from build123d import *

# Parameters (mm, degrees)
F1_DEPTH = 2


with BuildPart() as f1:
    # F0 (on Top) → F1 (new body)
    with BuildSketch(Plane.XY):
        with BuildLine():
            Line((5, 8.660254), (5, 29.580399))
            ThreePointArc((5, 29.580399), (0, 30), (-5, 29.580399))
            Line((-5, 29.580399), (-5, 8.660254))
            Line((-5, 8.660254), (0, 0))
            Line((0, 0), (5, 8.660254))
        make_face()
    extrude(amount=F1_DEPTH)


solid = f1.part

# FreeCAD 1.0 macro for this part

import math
import FreeCAD as App
import Part
import Sketcher

V = App.Vector
Q = App.Units.Quantity

doc = App.newDocument("Part")
body = doc.addObject("PartDesign::Body", "Body")

# Sketch on XY plane
sketch1 = body.newObject("Sketcher::SketchObject", "Sketch")
sketch1.AttachmentSupport = (doc.getObject("XY_Plane"), [""])
sketch1.MapMode = "FlatFace"
sketch1.addGeometry([
    Part.LineSegment(V(5, 8.660254, 0), V(5, 29.580399, 0)),  # 0
    Part.ArcOfCircle(Part.Circle(V(0, -0.000006, 0), V(0, 0, 1), 30.000006), math.radians(80.405934), math.radians(99.594066)),  # 1
    Part.LineSegment(V(-5, 29.580399, 0), V(-5, 8.660254, 0)),  # 2
    Part.LineSegment(V(-5, 8.660254, 0), V(0, 0, 0)),  # 3
    Part.LineSegment(V(0, 0, 0), V(5, 8.660254, 0)),  # 4
], False)
sketch1.addConstraint([
    Sketcher.Constraint("Coincident", 0, 2, 1, 1),
    Sketcher.Constraint("Coincident", 1, 2, 2, 1),
    Sketcher.Constraint("Coincident", 2, 2, 3, 1),
    Sketcher.Constraint("Coincident", 3, 2, 4, 1),
    Sketcher.Constraint("Coincident", 4, 2, 0, 1),
    Sketcher.Constraint("Vertical", 0),
    Sketcher.Constraint("Vertical", 2),
    Sketcher.Constraint("Coincident", 1, 3, -1, 1),
    Sketcher.Constraint("Coincident", 3, 2, -1, 1),
    Sketcher.Constraint("Symmetric", 2, 2, 4, 2, -2),
    Sketcher.Constraint("Angle", 3, Q("-60 deg")),
    Sketcher.Constraint("Distance", 3, 10.0),
    Sketcher.Constraint("Radius", 1, 30.000006),
])
pad1 = body.newObject("PartDesign::Pad", "Pad")
pad1.Profile = sketch1
pad1.Length = 2

doc.recompute()
